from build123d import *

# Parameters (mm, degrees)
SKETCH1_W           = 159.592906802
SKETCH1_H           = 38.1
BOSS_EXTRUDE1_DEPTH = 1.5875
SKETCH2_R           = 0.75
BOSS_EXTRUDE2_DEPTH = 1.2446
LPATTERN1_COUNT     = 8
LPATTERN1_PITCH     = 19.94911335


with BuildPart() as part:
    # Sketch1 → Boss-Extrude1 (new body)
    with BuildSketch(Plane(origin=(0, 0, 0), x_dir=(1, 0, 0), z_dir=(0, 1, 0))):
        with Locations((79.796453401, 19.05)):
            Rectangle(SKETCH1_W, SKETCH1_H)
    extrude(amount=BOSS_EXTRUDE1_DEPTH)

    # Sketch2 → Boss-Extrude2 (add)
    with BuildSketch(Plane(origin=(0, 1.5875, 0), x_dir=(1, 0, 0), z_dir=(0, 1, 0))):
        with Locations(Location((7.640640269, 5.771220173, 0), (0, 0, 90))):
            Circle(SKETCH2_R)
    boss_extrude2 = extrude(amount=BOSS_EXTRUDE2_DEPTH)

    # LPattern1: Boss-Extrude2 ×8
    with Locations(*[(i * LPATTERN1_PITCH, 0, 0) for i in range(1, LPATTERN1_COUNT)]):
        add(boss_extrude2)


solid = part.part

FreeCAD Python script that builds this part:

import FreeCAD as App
import Part
import Sketcher
Q = App.Units.Quantity


def add_polygon(sketch, points):
    """Adds a closed chain of lines whose ends are joined by coincident constraints."""
    first, n = sketch.GeometryCount, len(points)
    for a, b in zip(points, points[1:] + points[:1]):
        sketch.addGeometry(Part.LineSegment(App.Vector(*a, 0), App.Vector(*b, 0)), False)
    for i in range(n):
        sketch.addConstraint(Sketcher.Constraint("Coincident", first + i, 2, first + (i + 1) % n, 1))

doc = App.newDocument("Part")
body = doc.addObject("PartDesign::Body", "Body")

sketch1 = body.newObject("Sketcher::SketchObject", "Sketch")
sketch1.AttachmentSupport = (doc.getObject("XZ_Plane"), [""])
sketch1.MapMode = "FlatFace"
add_polygon(sketch1, [(0, -38.1), (0, 0), (159.592907, 0), (159.592907, -38.1)])
sketch1.addConstraint(Sketcher.Constraint("Vertical", 0))
sketch1.addConstraint(Sketcher.Constraint("Horizontal", 1))
sketch1.addConstraint(Sketcher.Constraint("Vertical", 2))
sketch1.addConstraint(Sketcher.Constraint("Horizontal", 3))
sketch1.addConstraint(Sketcher.Constraint("Coincident", 0, 2, -1, 1))
sketch1.addConstraint(Sketcher.Constraint("DistanceY", 0, 1, 0, 2, Q("1.5 in")))
sketch1.addConstraint(Sketcher.Constraint("DistanceX", 1, 1, 1, 2, Q("159.592907 mm")))
pad1 = body.newObject("PartDesign::Pad", "Pad")
pad1.Profile = sketch1
pad1.Length = Q("0.0625 in")
pad1.Reversed = True

sketch2 = body.newObject("Sketcher::SketchObject", "Sketch001")
sketch2.AttachmentSupport = (doc.getObject("XZ_Plane"), [""])
sketch2.MapMode = "FlatFace"
sketch2.AttachmentOffset = App.Placement(App.Vector(0, 0, -0.0625 * 25.4), App.Rotation())
sketch2.addGeometry(Part.Circle(App.Vector(7.64064, -5.77122, 0), App.Vector(0, 0, 1), 0.75), False)
sketch2.addConstraint(Sketcher.Constraint("Diameter", 0, Q("1.5 mm")))
sketch2.addConstraint(Sketcher.Constraint("DistanceX", -1, 1, 0, 3, Q("7.64064 mm")))
sketch2.addConstraint(Sketcher.Constraint("DistanceY", 0, 3, -1, 1, Q("5.77122 mm")))
pad2 = body.newObject("PartDesign::Pad", "Pad001")
pad2.Profile = sketch2
pad2.Length = Q("0.049 in")
pad2.Reversed = True
doc.recompute()

linearpattern = body.newObject("PartDesign::LinearPattern", "LinearPattern")
linearpattern.Originals = [pad2]
linearpattern.Direction = (doc.getObject("X_Axis"), [""])
linearpattern.Mode = "offset"
linearpattern.Offset = 19.949113
linearpattern.Occurrences = 8
body.Tip = linearpattern

doc.recompute()
